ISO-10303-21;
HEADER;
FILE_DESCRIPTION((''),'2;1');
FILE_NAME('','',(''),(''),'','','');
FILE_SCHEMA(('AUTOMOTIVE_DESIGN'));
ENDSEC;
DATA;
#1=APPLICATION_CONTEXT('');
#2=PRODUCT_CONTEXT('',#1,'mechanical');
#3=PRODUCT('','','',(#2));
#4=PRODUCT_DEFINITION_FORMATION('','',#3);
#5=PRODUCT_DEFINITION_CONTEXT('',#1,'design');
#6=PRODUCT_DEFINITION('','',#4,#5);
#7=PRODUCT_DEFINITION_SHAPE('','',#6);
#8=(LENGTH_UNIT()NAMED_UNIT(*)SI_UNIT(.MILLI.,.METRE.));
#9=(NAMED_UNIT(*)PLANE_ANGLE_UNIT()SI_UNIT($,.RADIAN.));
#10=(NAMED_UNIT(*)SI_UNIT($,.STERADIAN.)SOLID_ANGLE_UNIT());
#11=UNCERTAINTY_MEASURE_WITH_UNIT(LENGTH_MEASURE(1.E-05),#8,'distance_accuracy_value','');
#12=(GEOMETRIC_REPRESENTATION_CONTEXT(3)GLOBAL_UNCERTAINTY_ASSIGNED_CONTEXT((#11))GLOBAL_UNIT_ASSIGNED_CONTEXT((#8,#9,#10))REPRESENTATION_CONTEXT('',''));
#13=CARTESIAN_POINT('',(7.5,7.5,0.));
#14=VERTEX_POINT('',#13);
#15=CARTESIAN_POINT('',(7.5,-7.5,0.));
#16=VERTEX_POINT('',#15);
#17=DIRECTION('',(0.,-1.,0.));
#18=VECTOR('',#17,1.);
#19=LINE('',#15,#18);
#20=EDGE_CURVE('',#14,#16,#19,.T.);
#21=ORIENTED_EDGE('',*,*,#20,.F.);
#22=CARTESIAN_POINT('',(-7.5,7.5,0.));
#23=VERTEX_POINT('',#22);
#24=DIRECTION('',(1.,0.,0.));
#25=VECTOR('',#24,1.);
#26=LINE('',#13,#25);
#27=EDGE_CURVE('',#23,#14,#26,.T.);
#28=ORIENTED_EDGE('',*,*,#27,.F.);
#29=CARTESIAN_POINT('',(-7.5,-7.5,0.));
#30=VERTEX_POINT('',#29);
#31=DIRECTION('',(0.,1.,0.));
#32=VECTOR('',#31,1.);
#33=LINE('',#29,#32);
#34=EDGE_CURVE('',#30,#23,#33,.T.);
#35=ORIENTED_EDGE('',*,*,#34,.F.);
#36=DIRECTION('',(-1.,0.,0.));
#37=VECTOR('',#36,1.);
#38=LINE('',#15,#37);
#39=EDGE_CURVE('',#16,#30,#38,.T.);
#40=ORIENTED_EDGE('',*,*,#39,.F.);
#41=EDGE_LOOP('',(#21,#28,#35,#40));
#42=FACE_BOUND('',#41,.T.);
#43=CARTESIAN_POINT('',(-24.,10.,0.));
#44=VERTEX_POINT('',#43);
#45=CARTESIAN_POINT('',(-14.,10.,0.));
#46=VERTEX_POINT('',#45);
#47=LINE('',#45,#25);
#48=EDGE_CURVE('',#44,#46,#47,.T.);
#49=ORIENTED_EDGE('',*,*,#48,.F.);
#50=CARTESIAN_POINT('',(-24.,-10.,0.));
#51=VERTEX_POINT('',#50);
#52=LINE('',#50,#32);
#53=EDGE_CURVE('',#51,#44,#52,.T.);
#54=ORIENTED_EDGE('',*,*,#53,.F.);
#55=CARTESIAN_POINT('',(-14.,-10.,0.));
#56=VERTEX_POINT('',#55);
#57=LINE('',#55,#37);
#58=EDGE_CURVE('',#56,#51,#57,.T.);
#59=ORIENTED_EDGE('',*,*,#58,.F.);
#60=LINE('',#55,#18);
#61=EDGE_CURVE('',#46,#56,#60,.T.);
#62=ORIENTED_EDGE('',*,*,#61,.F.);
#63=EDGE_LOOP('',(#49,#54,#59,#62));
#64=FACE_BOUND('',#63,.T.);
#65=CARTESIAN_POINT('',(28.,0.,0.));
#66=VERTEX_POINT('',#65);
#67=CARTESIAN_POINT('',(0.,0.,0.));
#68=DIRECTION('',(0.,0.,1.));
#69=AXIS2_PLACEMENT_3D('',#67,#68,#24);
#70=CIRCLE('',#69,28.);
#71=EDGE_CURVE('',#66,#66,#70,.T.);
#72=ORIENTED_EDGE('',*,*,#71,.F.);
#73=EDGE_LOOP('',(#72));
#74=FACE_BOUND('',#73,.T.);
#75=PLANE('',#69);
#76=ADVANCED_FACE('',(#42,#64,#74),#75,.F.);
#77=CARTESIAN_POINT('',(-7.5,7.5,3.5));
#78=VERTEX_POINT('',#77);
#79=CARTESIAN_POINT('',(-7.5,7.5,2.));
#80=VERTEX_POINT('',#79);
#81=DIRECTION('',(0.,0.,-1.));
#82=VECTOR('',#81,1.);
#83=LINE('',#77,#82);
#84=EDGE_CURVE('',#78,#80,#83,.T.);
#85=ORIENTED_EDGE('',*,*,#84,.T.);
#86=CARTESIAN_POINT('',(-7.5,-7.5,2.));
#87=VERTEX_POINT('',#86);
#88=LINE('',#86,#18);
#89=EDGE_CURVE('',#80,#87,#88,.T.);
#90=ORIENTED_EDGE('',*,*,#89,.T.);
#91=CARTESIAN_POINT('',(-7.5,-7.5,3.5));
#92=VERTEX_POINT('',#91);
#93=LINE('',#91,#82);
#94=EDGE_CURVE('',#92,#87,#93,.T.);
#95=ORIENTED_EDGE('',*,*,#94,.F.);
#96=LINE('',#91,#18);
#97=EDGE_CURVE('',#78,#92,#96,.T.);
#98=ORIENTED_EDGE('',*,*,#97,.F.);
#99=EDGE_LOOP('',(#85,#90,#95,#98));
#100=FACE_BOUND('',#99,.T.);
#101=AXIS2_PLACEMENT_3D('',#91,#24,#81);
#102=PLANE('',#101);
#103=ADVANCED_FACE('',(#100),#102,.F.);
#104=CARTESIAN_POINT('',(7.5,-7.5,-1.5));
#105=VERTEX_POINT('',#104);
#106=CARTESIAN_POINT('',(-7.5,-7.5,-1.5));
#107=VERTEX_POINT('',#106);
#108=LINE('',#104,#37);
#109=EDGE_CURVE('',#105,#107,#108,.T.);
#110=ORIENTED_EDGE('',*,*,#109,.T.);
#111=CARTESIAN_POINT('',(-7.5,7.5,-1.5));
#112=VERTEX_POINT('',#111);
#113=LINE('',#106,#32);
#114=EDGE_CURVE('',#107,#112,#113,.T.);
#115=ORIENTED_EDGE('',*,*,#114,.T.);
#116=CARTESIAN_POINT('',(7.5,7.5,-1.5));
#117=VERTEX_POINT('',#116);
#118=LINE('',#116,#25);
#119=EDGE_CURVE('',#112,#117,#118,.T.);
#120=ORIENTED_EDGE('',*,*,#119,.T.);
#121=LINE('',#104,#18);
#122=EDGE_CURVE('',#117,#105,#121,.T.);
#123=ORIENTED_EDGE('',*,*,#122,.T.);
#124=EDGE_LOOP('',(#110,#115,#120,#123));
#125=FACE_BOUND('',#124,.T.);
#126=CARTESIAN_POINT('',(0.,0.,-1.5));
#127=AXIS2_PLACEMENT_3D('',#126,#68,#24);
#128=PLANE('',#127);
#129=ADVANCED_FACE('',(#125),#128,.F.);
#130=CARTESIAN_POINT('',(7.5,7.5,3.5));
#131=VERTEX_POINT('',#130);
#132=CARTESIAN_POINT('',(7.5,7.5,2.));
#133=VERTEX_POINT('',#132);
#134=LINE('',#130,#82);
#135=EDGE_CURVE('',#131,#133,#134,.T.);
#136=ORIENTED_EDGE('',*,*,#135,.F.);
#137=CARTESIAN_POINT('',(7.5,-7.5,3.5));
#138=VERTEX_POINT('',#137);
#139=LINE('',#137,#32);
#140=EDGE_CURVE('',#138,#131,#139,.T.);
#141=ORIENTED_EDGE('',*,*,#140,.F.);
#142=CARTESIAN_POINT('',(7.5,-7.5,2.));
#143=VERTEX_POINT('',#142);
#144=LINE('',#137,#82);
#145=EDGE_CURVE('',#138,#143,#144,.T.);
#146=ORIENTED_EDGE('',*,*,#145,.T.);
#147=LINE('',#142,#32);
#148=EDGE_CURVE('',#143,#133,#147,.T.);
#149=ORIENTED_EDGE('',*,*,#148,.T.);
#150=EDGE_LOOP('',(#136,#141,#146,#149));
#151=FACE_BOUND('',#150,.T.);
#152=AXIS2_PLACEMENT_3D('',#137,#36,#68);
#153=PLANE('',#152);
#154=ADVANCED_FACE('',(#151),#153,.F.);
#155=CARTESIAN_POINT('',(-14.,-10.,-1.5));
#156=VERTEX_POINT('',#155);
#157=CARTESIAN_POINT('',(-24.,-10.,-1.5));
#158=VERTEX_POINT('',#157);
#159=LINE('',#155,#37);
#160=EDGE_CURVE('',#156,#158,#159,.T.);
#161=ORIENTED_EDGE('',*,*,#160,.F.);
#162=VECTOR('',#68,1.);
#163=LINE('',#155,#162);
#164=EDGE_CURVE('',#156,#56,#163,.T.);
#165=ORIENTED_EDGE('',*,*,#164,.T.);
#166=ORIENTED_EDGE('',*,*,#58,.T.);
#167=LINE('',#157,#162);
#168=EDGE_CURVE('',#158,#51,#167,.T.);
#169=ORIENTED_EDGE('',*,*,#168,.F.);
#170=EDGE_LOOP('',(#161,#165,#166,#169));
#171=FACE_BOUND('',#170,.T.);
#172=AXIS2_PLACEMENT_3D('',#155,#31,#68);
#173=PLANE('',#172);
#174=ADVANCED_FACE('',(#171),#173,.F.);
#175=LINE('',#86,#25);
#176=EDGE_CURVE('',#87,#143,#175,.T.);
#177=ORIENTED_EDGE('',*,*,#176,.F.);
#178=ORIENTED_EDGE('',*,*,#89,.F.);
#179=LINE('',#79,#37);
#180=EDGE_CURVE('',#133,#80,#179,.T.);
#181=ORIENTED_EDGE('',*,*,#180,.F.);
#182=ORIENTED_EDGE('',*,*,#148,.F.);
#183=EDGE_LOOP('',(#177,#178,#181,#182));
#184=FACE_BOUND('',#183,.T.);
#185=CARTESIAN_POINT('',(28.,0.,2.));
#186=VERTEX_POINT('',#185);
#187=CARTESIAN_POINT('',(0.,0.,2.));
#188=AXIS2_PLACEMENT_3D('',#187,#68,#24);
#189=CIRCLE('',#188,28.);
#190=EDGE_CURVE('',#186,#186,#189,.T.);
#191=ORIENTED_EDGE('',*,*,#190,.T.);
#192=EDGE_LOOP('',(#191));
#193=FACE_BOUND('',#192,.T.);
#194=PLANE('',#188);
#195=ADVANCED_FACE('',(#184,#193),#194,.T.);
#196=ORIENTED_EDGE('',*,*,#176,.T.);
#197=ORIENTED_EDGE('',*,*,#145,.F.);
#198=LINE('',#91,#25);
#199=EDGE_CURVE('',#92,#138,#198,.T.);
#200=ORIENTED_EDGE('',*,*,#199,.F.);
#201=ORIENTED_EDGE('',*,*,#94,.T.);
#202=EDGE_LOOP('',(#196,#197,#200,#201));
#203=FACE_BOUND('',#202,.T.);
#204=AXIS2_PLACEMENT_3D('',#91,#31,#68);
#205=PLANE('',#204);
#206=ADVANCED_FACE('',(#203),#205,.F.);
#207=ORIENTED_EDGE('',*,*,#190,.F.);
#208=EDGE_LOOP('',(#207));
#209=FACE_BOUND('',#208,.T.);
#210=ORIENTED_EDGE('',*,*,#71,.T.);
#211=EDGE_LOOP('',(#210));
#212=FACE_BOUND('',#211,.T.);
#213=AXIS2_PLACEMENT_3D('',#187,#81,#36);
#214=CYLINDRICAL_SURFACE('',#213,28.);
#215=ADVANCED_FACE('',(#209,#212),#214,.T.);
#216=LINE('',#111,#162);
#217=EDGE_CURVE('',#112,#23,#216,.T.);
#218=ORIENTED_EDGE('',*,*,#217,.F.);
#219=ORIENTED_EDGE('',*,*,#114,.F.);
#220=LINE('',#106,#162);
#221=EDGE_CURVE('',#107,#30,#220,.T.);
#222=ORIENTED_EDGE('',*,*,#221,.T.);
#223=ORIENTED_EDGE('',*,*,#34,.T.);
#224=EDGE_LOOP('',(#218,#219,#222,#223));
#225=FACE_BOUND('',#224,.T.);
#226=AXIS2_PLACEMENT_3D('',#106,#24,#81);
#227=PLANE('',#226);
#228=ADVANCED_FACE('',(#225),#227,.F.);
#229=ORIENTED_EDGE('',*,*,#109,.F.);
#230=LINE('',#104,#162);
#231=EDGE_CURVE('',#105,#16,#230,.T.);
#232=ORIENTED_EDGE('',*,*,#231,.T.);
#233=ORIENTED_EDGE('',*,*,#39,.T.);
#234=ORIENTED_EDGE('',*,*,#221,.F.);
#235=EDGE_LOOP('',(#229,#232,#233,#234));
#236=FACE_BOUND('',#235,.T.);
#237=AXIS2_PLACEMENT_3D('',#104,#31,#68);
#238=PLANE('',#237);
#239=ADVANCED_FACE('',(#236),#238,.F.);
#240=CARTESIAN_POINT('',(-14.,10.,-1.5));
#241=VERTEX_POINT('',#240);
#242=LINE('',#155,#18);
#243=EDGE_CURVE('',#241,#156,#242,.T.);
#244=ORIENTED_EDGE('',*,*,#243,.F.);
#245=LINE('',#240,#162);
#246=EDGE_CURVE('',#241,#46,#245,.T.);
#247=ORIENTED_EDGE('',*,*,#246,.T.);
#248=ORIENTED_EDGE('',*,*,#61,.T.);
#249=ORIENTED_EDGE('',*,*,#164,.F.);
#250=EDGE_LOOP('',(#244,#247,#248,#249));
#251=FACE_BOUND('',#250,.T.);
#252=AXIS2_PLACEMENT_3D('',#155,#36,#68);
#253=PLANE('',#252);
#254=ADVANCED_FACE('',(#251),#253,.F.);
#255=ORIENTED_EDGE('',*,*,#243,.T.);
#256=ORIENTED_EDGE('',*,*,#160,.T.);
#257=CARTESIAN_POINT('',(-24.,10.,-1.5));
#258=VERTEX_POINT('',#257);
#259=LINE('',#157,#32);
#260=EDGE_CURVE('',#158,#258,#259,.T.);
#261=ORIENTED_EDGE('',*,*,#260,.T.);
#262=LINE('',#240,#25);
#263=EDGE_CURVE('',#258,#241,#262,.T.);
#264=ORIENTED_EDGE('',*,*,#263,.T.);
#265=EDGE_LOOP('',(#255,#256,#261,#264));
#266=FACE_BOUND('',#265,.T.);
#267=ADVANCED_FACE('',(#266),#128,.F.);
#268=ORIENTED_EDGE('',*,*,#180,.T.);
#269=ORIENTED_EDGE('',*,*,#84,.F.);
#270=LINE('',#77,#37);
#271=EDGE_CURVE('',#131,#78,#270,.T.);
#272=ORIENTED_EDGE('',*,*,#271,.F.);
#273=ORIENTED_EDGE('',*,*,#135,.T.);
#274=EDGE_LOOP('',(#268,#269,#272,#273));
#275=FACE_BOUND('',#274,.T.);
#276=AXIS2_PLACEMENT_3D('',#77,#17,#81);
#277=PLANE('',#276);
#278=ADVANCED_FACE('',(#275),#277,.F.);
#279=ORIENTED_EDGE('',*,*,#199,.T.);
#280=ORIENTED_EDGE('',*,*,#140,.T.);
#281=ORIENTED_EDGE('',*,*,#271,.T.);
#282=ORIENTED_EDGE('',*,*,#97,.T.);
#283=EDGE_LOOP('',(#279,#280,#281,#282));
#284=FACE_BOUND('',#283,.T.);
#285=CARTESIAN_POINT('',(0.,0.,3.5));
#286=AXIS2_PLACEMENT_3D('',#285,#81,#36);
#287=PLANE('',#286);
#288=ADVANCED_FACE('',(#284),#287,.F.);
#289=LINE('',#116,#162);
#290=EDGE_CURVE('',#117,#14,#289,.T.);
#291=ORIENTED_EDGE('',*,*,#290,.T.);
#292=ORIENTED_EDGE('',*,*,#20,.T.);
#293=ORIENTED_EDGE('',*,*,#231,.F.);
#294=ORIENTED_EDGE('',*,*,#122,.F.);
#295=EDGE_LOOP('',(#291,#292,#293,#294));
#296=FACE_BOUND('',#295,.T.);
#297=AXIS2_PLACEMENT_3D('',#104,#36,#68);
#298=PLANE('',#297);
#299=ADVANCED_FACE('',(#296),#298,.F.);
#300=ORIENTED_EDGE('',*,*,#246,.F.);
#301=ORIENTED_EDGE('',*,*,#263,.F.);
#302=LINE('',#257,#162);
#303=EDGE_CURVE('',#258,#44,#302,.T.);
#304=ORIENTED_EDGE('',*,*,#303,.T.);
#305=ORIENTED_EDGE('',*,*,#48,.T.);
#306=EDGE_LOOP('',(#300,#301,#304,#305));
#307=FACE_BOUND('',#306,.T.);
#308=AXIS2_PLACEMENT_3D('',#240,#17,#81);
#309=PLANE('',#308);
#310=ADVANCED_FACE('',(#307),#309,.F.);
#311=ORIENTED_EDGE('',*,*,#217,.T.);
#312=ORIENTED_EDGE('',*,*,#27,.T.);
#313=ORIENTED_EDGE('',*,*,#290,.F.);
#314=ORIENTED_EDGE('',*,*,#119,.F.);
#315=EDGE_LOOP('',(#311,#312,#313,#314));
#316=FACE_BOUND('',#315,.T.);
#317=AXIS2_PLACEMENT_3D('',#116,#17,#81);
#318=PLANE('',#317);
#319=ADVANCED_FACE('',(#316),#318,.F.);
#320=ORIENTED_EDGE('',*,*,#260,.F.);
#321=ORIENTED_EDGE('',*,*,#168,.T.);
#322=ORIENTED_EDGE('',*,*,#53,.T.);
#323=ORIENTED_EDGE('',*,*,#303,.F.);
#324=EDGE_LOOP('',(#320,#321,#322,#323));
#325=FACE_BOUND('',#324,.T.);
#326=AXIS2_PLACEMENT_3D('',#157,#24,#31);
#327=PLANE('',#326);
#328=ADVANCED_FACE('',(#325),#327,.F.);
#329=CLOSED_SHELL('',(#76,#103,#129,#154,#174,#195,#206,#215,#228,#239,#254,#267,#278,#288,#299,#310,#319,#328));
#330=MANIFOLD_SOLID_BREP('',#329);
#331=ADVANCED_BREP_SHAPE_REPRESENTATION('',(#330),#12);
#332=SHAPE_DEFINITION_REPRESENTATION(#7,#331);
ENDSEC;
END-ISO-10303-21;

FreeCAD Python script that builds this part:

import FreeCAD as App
import Part
import Sketcher

V = App.Vector

doc = App.newDocument("Part")
params = doc.addObject("Spreadsheet::Sheet", "Params")
for row, (alias, value) in enumerate([
    ("sketch1_diameter", "56 mm"),
    ("pad1_length", "2 mm"),
    ("sketch2_width", "15 mm"),
    ("pad2_length", "1.5 mm"),
    ("sketch3_width", "10 mm"),
    ("sketch3_height", "20 mm"),
    ("pad3_length", "1.5 mm"),
    ("sketch4_width", "15 mm"),
    ("pad4_length", "1.5 mm"),
], start=1):
    params.set(f"A{row}", alias)
    params.set(f"B{row}", "=" + value)
    params.setAlias(f"B{row}", alias)

body = doc.addObject("PartDesign::Body", "Body")

# Sketch on XY plane
sketch1 = body.newObject("Sketcher::SketchObject", "Sketch")
sketch1.AttachmentSupport = (doc.getObject("XY_Plane"), [""])
sketch1.MapMode = "FlatFace"
sketch1.addGeometry(Part.Circle(V(0, 0, 0), V(0, 0, 1), 28), False)
sketch1.addConstraint(Sketcher.Constraint("Coincident", 0, 3, -1, 1))
sketch1.addConstraint(Sketcher.Constraint("Diameter", 0, 56.0))
sketch1.setExpression("Constraints[1]", "Params.sketch1_diameter")
pad1 = body.newObject("PartDesign::Pad", "Pad")
pad1.Profile = sketch1
pad1.setExpression("Length", "Params.pad1_length")

# Sketch on XY plane
sketch2 = body.newObject("Sketcher::SketchObject", "Sketch001")
sketch2.AttachmentSupport = (doc.getObject("XY_Plane"), [""])
sketch2.MapMode = "FlatFace"
sketch2.AttachmentOffset = App.Placement(V(0, 0, 2), App.Rotation())
sketch2.addGeometry(Part.LineSegment(V(-8, 8, 0), V(-8, -8, 0)), False)
sketch2.addGeometry(Part.LineSegment(V(-8, -8, 0), V(8, -8, 0)), False)
sketch2.addGeometry(Part.LineSegment(V(8, -8, 0), V(8, 8, 0)), False)
sketch2.addGeometry(Part.LineSegment(V(8, 8, 0), V(-8, 8, 0)), False)
sketch2.addConstraint(Sketcher.Constraint("Coincident", 0, 2, 1, 1))
sketch2.addConstraint(Sketcher.Constraint("Coincident", 1, 2, 2, 1))
sketch2.addConstraint(Sketcher.Constraint("Coincident", 2, 2, 3, 1))
sketch2.addConstraint(Sketcher.Constraint("Coincident", 3, 2, 0, 1))
sketch2.addConstraint(Sketcher.Constraint("Vertical", 0))
sketch2.addConstraint(Sketcher.Constraint("Horizontal", 1))
sketch2.addConstraint(Sketcher.Constraint("Vertical", 2))
sketch2.addConstraint(Sketcher.Constraint("Horizontal", 3))
sketch2.addConstraint(Sketcher.Constraint("Symmetric", 0, 2, 2, 2, -1, 1))
sketch2.addConstraint(Sketcher.Constraint("Equal", 3, 0))
sketch2.addConstraint(Sketcher.Constraint("DistanceX", 1, 1, 1, 2, 15.0))
sketch2.setExpression("Constraints[10]", "Params.sketch2_width")
pad2 = body.newObject("PartDesign::Pad", "Pad001")
pad2.Profile = sketch2
pad2.setExpression("Length", "Params.pad2_length")

# Sketch on XY plane
sketch3 = body.newObject("Sketcher::SketchObject", "Sketch002")
sketch3.AttachmentSupport = (doc.getObject("XY_Plane"), [""])
sketch3.MapMode = "FlatFace"
sketch3.addGeometry(Part.LineSegment(V(-14, 10, 0), V(-14, -10, 0)), False)
sketch3.addGeometry(Part.LineSegment(V(-14, -10, 0), V(-24, -10, 0)), False)
sketch3.addGeometry(Part.LineSegment(V(-24, -10, 0), V(-24, 10, 0)), False)
sketch3.addGeometry(Part.LineSegment(V(-24, 10, 0), V(-14, 10, 0)), False)
sketch3.addConstraint(Sketcher.Constraint("Coincident", 0, 2, 1, 1))
sketch3.addConstraint(Sketcher.Constraint("Coincident", 1, 2, 2, 1))
sketch3.addConstraint(Sketcher.Constraint("Coincident", 2, 2, 3, 1))
sketch3.addConstraint(Sketcher.Constraint("Coincident", 3, 2, 0, 1))
sketch3.addConstraint(Sketcher.Constraint("Vertical", 0))
sketch3.addConstraint(Sketcher.Constraint("Horizontal", 1))
sketch3.addConstraint(Sketcher.Constraint("Vertical", 2))
sketch3.addConstraint(Sketcher.Constraint("Horizontal", 3))
sketch3.addConstraint(Sketcher.Constraint("DistanceX", 1, 2, 1, 1, 10.0))
sketch3.addConstraint(Sketcher.Constraint("DistanceY", 0, 2, 0, 1, 20.0))
sketch3.addConstraint(Sketcher.Constraint("DistanceX", 0, 2, -1, 1, 14.0))
sketch3.addConstraint(Sketcher.Constraint("DistanceY", 0, 2, -1, 1, 10.0))
sketch3.setExpression("Constraints[8]", "Params.sketch3_width")
sketch3.setExpression("Constraints[9]", "Params.sketch3_height")
pad3 = body.newObject("PartDesign::Pad", "Pad002")
pad3.Profile = sketch3
pad3.setExpression("Length", "Params.pad3_length")
pad3.Reversed = True

# Sketch on XY plane
sketch4 = body.newObject("Sketcher::SketchObject", "Sketch003")
sketch4.AttachmentSupport = (doc.getObject("XY_Plane"), [""])
sketch4.MapMode = "FlatFace"
sketch4.addGeometry(Part.LineSegment(V(8, 8, 0), V(8, -8, 0)), False)
sketch4.addGeometry(Part.LineSegment(V(8, -8, 0), V(-8, -8, 0)), False)
sketch4.addGeometry(Part.LineSegment(V(-8, -8, 0), V(-8, 8, 0)), False)
sketch4.addGeometry(Part.LineSegment(V(-8, 8, 0), V(8, 8, 0)), False)
sketch4.addConstraint(Sketcher.Constraint("Coincident", 0, 2, 1, 1))
sketch4.addConstraint(Sketcher.Constraint("Coincident", 1, 2, 2, 1))
sketch4.addConstraint(Sketcher.Constraint("Coincident", 2, 2, 3, 1))
sketch4.addConstraint(Sketcher.Constraint("Coincident", 3, 2, 0, 1))
sketch4.addConstraint(Sketcher.Constraint("Vertical", 0))
sketch4.addConstraint(Sketcher.Constraint("Horizontal", 1))
sketch4.addConstraint(Sketcher.Constraint("Vertical", 2))
sketch4.addConstraint(Sketcher.Constraint("Horizontal", 3))
sketch4.addConstraint(Sketcher.Constraint("Symmetric", 0, 2, 2, 2, -1, 1))
sketch4.addConstraint(Sketcher.Constraint("Equal", 3, 0))
sketch4.addConstraint(Sketcher.Constraint("DistanceX", 1, 2, 1, 1, 15.0))
sketch4.setExpression("Constraints[10]", "Params.sketch4_width")
pad4 = body.newObject("PartDesign::Pad", "Pad003")
pad4.Profile = sketch4
pad4.setExpression("Length", "Params.pad4_length")
pad4.Reversed = True

doc.recompute()
